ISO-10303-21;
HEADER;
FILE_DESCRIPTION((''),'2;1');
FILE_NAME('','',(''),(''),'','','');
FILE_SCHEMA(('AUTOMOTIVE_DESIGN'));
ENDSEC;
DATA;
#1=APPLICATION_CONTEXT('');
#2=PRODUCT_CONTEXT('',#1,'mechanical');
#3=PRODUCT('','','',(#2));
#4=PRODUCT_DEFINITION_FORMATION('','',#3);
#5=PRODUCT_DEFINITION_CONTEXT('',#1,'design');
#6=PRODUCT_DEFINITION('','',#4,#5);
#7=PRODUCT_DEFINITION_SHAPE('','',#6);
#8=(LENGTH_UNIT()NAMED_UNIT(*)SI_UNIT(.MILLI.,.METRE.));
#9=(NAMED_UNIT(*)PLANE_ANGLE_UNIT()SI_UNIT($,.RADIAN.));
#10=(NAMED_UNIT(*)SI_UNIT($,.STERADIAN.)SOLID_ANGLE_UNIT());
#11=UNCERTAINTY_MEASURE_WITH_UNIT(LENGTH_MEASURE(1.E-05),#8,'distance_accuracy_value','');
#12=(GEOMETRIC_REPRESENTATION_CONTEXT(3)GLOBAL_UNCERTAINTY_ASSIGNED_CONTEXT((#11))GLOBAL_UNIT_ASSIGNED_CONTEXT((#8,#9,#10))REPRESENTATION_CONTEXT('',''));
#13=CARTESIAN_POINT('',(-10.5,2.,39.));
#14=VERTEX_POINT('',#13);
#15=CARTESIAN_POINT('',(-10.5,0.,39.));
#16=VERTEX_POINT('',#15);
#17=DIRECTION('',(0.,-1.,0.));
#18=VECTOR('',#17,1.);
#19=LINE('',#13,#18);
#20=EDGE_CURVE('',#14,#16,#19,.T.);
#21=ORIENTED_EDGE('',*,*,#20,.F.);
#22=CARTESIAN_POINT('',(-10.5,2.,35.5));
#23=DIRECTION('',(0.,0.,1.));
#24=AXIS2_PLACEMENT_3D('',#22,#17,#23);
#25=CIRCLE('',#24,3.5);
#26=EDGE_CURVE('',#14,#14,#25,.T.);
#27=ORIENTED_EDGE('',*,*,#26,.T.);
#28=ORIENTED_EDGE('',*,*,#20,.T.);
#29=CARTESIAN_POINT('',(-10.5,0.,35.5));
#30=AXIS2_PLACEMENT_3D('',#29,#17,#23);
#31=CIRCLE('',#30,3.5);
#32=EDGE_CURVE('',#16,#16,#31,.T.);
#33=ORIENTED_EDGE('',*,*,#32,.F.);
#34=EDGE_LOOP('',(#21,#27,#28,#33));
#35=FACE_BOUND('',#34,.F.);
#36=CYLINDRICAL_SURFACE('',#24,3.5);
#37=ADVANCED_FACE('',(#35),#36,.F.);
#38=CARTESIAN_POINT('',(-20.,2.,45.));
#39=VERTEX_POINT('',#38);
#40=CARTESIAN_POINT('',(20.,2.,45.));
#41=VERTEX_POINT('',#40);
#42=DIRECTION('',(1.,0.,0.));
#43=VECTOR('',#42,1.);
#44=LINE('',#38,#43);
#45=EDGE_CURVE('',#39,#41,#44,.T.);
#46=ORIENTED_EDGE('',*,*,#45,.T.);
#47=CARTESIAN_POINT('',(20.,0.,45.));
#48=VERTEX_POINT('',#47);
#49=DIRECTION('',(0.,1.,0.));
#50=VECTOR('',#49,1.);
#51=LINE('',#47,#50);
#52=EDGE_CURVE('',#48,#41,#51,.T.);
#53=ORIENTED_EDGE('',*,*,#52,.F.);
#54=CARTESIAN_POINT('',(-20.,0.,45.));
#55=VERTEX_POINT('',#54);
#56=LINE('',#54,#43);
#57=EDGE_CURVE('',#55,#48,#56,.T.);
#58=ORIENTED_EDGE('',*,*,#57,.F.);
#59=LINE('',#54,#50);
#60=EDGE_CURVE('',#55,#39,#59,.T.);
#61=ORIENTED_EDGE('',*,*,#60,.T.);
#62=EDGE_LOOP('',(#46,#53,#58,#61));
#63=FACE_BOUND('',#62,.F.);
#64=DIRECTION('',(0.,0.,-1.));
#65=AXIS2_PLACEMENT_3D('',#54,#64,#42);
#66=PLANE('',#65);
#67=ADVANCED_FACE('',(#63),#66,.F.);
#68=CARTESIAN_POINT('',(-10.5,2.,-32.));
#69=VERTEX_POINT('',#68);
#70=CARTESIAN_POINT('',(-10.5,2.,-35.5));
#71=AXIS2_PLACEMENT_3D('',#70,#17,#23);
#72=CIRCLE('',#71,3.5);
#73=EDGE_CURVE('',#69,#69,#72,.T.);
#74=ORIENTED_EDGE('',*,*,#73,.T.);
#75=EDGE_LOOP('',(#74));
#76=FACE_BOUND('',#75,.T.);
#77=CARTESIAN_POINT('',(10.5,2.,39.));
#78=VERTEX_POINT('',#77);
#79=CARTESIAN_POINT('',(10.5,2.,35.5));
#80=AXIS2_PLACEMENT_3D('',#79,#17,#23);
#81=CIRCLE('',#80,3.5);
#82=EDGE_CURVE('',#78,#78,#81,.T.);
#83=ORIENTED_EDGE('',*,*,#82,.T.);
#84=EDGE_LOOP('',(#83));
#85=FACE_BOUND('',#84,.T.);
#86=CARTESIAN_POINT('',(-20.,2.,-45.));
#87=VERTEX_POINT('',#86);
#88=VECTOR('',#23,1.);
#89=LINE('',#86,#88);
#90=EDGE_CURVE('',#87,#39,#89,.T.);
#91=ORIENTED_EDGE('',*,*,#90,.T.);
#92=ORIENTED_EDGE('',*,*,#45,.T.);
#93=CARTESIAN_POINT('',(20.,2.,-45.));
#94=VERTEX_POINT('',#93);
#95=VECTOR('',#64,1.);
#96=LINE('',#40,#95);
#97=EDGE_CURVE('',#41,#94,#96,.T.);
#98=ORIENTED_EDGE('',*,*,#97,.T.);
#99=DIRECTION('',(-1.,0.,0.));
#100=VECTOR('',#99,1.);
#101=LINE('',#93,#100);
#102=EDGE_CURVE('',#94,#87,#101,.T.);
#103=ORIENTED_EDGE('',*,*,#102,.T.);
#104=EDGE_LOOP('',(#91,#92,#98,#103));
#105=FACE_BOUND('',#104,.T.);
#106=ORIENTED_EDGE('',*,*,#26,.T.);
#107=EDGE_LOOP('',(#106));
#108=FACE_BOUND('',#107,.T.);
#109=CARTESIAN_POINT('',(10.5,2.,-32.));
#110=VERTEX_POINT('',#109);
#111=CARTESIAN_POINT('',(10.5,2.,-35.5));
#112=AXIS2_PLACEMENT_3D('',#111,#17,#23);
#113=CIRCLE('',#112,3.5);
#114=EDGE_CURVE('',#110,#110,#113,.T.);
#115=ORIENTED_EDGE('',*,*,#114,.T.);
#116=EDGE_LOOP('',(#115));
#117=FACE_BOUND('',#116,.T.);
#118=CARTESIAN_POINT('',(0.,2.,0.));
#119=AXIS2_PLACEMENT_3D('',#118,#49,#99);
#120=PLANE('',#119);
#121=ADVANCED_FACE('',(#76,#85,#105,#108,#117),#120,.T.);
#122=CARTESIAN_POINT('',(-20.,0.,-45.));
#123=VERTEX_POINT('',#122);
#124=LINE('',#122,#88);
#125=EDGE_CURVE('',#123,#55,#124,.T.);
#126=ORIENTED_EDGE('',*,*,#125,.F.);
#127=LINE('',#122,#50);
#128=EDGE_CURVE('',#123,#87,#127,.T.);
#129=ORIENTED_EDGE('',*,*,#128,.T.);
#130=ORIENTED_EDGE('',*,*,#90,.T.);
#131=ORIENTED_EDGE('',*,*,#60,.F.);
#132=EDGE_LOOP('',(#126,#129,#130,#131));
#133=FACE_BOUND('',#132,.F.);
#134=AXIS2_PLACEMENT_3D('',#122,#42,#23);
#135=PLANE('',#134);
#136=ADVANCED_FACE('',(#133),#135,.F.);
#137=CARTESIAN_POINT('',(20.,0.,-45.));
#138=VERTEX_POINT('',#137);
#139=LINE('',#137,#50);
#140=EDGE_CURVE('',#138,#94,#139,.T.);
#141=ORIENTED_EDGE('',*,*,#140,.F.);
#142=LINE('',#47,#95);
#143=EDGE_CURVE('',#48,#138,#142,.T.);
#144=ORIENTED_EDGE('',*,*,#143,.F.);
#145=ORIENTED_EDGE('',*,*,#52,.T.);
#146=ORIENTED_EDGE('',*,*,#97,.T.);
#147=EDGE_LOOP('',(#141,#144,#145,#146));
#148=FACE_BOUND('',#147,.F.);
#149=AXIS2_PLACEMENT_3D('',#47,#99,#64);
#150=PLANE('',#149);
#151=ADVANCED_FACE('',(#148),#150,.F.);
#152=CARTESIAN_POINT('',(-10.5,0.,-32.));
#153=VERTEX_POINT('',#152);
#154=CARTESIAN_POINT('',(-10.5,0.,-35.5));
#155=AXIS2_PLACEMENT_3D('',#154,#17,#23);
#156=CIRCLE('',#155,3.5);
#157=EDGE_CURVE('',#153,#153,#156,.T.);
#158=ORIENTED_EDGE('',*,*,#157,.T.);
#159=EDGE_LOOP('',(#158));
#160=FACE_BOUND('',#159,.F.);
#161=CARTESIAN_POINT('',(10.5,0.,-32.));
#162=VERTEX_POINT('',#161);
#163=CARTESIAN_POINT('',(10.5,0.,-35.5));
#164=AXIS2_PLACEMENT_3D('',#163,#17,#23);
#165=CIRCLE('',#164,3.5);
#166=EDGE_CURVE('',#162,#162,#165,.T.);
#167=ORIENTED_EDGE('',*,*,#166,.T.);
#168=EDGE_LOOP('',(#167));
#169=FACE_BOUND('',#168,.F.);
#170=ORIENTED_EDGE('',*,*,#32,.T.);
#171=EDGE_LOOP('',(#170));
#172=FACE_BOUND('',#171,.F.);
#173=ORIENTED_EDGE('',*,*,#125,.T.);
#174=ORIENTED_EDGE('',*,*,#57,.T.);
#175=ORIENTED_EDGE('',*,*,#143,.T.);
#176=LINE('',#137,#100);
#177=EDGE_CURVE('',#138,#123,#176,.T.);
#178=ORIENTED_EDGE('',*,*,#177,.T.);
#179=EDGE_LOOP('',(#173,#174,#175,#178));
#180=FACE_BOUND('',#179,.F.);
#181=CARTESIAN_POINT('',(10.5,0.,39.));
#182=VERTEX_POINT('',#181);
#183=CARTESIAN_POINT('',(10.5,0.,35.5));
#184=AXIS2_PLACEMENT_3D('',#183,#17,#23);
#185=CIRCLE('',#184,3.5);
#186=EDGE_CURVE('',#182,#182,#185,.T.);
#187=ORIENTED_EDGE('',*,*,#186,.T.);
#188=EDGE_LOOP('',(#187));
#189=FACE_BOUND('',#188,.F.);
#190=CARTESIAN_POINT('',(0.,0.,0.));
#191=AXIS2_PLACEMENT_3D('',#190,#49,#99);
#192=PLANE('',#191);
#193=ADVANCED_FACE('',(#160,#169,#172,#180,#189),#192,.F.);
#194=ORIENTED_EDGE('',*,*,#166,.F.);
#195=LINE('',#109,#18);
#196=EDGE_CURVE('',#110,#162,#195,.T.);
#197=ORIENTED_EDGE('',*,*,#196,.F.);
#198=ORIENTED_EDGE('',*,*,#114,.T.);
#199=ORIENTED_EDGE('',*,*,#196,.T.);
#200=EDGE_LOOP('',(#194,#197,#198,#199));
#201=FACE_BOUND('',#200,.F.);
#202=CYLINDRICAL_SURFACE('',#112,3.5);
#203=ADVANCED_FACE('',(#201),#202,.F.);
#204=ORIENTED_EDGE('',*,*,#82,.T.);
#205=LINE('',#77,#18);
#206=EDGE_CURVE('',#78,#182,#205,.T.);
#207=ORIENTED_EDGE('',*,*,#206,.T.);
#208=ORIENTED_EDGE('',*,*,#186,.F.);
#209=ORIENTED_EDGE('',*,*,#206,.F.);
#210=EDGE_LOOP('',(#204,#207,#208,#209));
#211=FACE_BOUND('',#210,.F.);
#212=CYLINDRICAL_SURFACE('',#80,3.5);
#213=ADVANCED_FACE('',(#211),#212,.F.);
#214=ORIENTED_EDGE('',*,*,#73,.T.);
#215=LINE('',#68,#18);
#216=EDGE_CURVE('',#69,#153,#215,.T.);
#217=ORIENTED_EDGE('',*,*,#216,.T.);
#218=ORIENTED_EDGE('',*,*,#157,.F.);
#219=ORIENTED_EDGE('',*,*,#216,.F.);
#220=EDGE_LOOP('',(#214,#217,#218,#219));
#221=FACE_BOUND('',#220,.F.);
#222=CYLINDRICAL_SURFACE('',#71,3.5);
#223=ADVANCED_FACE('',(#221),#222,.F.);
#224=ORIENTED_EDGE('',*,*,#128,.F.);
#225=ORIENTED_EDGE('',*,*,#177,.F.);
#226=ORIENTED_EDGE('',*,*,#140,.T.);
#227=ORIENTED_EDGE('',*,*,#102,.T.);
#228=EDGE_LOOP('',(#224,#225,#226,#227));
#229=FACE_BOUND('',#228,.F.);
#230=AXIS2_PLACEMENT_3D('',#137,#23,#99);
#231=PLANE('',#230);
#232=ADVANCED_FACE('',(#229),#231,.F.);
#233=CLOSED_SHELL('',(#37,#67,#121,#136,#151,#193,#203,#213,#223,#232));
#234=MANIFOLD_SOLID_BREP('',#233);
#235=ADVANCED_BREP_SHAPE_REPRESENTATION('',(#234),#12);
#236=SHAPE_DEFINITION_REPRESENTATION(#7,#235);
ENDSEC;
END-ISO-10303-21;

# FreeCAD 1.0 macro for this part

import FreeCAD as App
import Part
import Sketcher

V = App.Vector


def add_polygon(sketch, points):
    """Adds a closed chain of lines whose ends are joined by coincident constraints."""
    first, n = sketch.GeometryCount, len(points)
    for a, b in zip(points, points[1:] + points[:1]):
        sketch.addGeometry(Part.LineSegment(App.Vector(*a, 0), App.Vector(*b, 0)), False)
    for i in range(n):
        sketch.addConstraint(Sketcher.Constraint("Coincident", first + i, 2, first + (i + 1) % n, 1))

doc = App.newDocument("Part")
body = doc.addObject("PartDesign::Body", "Body")

# Sketch on XZ plane
sketch1 = doc.addObject("Sketcher::SketchObject", "Sketch")
body.addObject(sketch1)
sketch1.AttachmentSupport = (doc.XZ_Plane, [""])
sketch1.MapMode = "FlatFace"
add_polygon(sketch1, [(20, 45), (20, -45), (-20, -45), (-20, 45)])  # lines 0-3
sketch1.addConstraint([
    Sketcher.Constraint("Vertical", 0),
    Sketcher.Constraint("Horizontal", 1),
    Sketcher.Constraint("Vertical", 2),
    Sketcher.Constraint("Horizontal", 3),
    Sketcher.Constraint("Symmetric", 0, 2, 2, 2, -1, 1),
    Sketcher.Constraint("DistanceX", 1, 2, 1, 1, 40.0),
    Sketcher.Constraint("DistanceY", 0, 2, 0, 1, 90.0),
])
pad1 = doc.addObject("PartDesign::Pad", "Pad")
body.addObject(pad1)
pad1.Profile = sketch1
pad1.Length = 2
pad1.Reversed = True

# Sketch on XZ plane
sketch2 = doc.addObject("Sketcher::SketchObject", "Sketch001")
body.addObject(sketch2)
sketch2.AttachmentSupport = (doc.XZ_Plane, [""])
sketch2.MapMode = "FlatFace"
sketch2.AttachmentOffset = App.Placement(V(0, 0, -2), App.Rotation())
sketch2.addGeometry([
    Part.Circle(V(-10.5, 35.5, 0), V(0, 0, 1), 3.5),
    Part.Circle(V(10.5, 35.5, 0), V(0, 0, 1), 3.5),
    Part.Circle(V(-10.5, -35.5, 0), V(0, 0, 1), 3.5),
    Part.Circle(V(10.5, -35.5, 0), V(0, 0, 1), 3.5),
], False)
sketch2.addConstraint([
    Sketcher.Constraint("Equal", 0, 1),
    Sketcher.Constraint("Equal", 1, 2),
    Sketcher.Constraint("Equal", 2, 3),
    Sketcher.Constraint("Symmetric", 1, 3, 2, 3, -1, 1),
    Sketcher.Constraint("Symmetric", 0, 3, 3, 3, -1, 1),
    Sketcher.Constraint("Symmetric", 0, 3, 1, 3, -2),
    Sketcher.Constraint("Diameter", 0, 7.0),
    Sketcher.Constraint("DistanceX", 0, 3, 1, 3, 21.0),
    Sketcher.Constraint("DistanceY", 2, 3, 0, 3, 71.0),
])
doc.recompute()
hole = doc.addObject("PartDesign::Hole", "Hole")
body.addObject(hole)
hole.Profile = sketch2
hole.ThreadType = "None"
hole.Diameter = 7
hole.DepthType = "ThroughAll"
hole.Reversed = True

doc.recompute()
